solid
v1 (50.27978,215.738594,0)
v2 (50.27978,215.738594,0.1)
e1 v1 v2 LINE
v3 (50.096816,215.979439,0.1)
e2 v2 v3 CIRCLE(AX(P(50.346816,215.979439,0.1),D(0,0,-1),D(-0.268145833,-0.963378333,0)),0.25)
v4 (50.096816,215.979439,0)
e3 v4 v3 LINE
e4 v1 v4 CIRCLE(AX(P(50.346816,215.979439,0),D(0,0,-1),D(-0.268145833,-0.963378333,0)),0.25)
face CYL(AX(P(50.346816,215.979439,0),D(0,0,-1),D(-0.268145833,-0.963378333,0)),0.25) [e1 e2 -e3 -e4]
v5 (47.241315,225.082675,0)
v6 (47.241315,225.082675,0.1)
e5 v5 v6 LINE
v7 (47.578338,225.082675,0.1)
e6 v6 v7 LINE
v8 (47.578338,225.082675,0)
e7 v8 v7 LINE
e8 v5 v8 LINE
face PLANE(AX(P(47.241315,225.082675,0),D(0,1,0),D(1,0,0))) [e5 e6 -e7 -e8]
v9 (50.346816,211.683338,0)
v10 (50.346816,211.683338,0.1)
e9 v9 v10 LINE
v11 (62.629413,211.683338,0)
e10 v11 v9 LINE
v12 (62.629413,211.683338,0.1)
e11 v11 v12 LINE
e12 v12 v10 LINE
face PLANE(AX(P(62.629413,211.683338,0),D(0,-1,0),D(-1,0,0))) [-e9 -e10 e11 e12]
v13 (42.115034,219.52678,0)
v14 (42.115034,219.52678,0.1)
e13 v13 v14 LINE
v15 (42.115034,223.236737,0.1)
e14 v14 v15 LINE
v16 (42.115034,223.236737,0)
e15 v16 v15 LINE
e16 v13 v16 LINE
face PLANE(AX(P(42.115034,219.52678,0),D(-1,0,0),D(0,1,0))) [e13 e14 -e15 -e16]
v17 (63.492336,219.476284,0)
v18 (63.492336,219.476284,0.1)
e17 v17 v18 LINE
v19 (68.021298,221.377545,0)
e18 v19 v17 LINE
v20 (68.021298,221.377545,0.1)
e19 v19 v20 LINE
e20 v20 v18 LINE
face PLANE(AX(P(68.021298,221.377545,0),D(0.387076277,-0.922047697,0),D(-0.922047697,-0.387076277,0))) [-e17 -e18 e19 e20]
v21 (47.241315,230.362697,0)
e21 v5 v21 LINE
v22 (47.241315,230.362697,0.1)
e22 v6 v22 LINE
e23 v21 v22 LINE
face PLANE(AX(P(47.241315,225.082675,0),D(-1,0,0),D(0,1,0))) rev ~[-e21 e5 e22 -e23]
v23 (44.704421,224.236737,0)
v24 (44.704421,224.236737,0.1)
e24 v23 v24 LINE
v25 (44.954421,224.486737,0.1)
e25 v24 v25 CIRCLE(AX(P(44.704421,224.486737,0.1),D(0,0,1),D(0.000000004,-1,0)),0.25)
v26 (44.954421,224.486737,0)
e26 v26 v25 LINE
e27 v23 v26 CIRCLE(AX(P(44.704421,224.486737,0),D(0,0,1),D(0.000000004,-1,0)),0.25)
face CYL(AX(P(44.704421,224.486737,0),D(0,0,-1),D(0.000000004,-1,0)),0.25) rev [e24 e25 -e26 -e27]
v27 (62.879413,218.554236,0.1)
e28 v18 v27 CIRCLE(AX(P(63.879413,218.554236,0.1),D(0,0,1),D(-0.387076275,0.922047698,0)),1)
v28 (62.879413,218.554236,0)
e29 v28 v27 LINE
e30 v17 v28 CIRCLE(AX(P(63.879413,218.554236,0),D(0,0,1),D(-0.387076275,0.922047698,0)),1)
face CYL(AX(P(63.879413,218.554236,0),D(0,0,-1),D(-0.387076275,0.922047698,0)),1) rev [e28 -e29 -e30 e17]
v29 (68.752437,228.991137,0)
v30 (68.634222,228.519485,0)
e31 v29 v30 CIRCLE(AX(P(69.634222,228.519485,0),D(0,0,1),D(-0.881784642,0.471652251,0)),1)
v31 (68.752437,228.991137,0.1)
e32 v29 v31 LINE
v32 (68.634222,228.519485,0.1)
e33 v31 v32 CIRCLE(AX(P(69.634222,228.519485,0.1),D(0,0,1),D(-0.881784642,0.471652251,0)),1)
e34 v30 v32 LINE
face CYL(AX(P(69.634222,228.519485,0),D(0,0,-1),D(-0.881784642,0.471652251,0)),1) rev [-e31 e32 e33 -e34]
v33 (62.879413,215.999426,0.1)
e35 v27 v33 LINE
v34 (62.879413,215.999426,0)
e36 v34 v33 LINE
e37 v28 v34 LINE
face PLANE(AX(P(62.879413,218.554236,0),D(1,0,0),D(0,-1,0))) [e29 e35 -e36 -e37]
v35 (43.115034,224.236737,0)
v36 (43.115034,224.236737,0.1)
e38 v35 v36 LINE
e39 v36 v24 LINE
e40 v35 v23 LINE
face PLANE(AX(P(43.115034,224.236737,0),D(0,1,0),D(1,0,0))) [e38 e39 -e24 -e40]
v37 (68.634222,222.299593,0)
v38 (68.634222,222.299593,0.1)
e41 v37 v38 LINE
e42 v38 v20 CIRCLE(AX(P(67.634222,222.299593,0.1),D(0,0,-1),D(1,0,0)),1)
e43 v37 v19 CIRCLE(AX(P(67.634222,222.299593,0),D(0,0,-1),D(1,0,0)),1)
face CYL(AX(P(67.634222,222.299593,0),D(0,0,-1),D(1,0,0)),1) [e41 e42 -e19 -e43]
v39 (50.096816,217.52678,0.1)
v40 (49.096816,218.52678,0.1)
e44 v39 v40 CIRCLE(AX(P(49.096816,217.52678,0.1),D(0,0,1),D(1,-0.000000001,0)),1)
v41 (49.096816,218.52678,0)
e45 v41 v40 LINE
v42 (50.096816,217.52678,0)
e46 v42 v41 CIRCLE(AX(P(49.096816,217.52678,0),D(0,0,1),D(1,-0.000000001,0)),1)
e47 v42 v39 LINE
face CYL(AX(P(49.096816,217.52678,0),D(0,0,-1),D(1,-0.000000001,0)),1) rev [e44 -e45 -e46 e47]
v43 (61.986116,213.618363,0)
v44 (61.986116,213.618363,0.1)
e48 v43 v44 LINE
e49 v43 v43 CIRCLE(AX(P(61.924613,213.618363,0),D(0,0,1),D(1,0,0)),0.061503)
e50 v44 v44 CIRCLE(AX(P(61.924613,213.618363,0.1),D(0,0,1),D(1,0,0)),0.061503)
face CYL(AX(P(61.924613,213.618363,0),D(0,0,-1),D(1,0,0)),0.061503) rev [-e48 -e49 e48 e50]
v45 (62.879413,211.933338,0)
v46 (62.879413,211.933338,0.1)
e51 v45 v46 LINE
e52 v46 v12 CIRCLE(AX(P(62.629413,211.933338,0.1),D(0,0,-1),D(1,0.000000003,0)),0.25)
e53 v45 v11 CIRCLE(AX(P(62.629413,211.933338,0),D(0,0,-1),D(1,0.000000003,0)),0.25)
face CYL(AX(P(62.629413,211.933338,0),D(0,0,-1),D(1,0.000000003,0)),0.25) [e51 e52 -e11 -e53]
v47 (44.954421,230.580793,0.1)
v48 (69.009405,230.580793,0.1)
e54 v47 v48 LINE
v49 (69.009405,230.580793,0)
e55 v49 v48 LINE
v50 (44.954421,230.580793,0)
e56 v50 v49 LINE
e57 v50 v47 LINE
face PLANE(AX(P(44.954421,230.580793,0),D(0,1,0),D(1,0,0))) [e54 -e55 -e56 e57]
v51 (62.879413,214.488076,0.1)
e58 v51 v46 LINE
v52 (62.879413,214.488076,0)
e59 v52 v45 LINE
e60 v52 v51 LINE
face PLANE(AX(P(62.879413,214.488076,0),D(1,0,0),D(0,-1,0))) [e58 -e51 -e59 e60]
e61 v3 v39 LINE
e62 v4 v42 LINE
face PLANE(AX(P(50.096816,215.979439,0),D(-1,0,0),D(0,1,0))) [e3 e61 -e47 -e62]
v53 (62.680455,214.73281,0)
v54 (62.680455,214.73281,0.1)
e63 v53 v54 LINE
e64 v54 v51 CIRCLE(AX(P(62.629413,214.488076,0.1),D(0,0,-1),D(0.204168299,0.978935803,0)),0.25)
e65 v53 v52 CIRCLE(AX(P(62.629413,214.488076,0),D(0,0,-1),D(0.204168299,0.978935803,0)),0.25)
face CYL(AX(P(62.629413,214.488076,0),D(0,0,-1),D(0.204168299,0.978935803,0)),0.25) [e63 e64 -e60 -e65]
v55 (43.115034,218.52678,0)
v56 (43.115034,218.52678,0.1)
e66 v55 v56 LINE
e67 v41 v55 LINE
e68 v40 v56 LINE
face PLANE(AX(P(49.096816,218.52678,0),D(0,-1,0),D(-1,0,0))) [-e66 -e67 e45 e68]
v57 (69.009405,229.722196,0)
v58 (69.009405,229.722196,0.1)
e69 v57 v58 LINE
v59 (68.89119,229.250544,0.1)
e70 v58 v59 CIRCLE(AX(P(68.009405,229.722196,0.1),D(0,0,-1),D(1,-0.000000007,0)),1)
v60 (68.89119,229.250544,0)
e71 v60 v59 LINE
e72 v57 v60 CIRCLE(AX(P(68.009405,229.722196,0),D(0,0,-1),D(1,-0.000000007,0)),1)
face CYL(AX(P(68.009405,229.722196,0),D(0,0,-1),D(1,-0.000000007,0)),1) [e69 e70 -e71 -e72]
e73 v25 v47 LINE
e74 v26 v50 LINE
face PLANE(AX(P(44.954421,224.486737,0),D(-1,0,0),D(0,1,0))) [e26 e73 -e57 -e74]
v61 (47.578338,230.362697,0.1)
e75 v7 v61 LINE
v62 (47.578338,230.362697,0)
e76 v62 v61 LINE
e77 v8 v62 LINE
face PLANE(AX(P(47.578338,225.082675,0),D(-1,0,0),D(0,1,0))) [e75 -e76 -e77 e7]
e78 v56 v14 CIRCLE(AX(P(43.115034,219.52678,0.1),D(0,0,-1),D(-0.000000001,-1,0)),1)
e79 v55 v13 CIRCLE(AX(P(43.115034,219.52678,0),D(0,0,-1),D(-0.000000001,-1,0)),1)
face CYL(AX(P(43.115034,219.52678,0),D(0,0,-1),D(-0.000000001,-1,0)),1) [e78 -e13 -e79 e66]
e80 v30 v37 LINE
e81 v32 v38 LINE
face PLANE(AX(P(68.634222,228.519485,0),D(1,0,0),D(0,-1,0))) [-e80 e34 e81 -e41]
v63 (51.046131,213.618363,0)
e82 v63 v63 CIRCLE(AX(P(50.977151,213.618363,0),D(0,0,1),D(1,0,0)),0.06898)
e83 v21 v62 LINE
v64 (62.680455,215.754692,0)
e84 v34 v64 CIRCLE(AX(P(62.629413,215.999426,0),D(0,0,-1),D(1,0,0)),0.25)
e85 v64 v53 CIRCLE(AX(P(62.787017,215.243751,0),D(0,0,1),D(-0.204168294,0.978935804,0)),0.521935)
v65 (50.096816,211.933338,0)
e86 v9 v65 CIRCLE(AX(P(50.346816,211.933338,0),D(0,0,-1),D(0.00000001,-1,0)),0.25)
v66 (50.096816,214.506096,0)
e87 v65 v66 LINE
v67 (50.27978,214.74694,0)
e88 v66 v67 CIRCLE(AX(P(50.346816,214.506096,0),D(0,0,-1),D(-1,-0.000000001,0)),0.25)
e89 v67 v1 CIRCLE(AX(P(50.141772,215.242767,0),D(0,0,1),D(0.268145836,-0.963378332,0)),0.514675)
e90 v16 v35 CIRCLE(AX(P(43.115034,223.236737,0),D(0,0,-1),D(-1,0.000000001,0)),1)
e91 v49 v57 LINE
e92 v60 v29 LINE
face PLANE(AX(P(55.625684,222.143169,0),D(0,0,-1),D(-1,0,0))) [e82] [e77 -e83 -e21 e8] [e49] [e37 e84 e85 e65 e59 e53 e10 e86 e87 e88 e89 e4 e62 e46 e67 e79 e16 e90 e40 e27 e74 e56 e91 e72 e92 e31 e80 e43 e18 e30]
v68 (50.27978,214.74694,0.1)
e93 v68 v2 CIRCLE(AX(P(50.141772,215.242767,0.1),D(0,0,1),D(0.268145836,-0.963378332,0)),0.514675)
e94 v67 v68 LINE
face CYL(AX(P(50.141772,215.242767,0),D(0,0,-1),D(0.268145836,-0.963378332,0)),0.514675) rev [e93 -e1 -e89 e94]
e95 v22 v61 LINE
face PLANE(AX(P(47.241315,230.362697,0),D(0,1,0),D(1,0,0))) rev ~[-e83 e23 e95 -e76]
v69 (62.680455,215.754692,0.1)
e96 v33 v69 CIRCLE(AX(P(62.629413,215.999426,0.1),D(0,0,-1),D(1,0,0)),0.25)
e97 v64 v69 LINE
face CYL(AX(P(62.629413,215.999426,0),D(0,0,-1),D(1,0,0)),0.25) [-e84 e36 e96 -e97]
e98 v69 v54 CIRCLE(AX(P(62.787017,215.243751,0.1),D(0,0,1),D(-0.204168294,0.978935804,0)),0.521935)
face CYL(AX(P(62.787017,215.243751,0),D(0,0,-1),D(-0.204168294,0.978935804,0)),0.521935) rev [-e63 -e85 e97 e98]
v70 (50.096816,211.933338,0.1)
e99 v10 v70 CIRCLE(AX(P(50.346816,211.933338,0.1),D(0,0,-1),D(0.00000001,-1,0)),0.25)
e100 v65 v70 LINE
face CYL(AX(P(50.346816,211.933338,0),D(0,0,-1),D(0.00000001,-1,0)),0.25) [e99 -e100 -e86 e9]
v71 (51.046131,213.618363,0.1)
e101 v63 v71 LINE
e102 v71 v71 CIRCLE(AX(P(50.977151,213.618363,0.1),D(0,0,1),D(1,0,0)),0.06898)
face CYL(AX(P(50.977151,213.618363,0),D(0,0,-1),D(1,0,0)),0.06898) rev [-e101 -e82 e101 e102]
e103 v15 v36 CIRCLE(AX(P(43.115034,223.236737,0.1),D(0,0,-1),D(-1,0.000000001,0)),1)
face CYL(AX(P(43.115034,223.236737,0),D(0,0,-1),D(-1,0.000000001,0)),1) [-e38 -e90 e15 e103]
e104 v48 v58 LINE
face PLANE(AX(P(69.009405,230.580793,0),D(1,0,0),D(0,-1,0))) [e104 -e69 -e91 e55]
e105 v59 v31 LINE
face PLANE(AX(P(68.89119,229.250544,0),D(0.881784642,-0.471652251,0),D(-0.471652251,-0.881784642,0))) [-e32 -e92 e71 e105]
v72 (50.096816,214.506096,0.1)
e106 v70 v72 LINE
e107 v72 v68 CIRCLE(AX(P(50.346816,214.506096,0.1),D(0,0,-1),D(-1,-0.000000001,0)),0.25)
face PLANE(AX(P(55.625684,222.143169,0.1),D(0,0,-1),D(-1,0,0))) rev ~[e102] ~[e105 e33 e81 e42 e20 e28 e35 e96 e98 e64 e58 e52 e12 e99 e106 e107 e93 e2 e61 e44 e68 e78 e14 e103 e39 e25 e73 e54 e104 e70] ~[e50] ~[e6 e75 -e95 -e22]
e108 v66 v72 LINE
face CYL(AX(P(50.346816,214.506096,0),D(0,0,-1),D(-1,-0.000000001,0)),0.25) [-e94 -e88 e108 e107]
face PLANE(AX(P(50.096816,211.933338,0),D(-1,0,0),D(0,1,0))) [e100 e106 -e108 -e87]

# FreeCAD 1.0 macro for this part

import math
import FreeCAD as App
import Part
import Sketcher

V = App.Vector
Q = App.Units.Quantity

doc = App.newDocument("Part")
body = doc.addObject("PartDesign::Body", "Body")

# Sketch on XY plane
sketch1 = body.newObject("Sketcher::SketchObject", "Sketch")
sketch1.AttachmentSupport = (doc.getObject("XY_Plane"), [""])
sketch1.MapMode = "FlatFace"
sketch1.addGeometry([
    Part.LineSegment(V(69.01, 229.72, 0), V(69.01, 230.58, 0)),  # 0
    Part.LineSegment(V(69.01, 230.58, 0), V(44.95, 230.58, 0)),  # 1
    Part.LineSegment(V(44.95, 230.58, 0), V(44.95, 224.49, 0)),  # 2
    Part.ArcOfCircle(Part.Circle(V(44.7, 224.49, 0), V(0, 0, 1), 0.25), math.radians(-90), math.radians(0)),  # 3
    Part.LineSegment(V(44.7, 224.24, 0), V(43.12, 224.24, 0)),  # 4
    Part.ArcOfCircle(Part.Circle(V(43.12, 223.24, 0), V(0, 0, 1), 1), math.radians(90), math.radians(180)),  # 5
    Part.LineSegment(V(42.12, 223.24, 0), V(42.12, 219.53, 0)),  # 6
    Part.ArcOfCircle(Part.Circle(V(43.12, 219.53, 0), V(0, 0, 1), 1), math.radians(-180), math.radians(-90)),  # 7
    Part.LineSegment(V(43.12, 218.53, 0), V(49.1, 218.53, 0)),  # 8
    Part.ArcOfCircle(Part.Circle(V(49.1, 217.53, 0), V(0, 0, 1), 1), math.radians(0), math.radians(90)),  # 9
    Part.LineSegment(V(50.1, 217.53, 0), V(50.1, 215.98, 0)),  # 10
    Part.ArcOfCircle(Part.Circle(V(50.35, 215.98, 0), V(0, 0, 1), 0.25), math.radians(180), math.radians(254)),  # 11
    Part.ArcOfCircle(Part.Circle(V(50.14, 215.24, 0), V(0, 0, 1), 0.51), math.radians(-74), math.radians(74)),  # 12
    Part.ArcOfCircle(Part.Circle(V(50.35, 214.51, 0), V(0, 0, 1), 0.25), math.radians(106), math.radians(180)),  # 13
    Part.LineSegment(V(50.1, 214.51, 0), V(50.1, 211.93, 0)),  # 14
    Part.ArcOfCircle(Part.Circle(V(50.35, 211.93, 0), V(0, 0, 1), 0.25), math.radians(180), math.radians(270)),  # 15
    Part.LineSegment(V(50.35, 211.68, 0), V(62.63, 211.68, 0)),  # 16
    Part.ArcOfCircle(Part.Circle(V(62.63, 211.93, 0), V(0, 0, 1), 0.25), math.radians(-90), math.radians(0)),  # 17
    Part.LineSegment(V(62.88, 211.93, 0), V(62.88, 214.49, 0)),  # 18
    Part.ArcOfCircle(Part.Circle(V(62.63, 214.49, 0), V(0, 0, 1), 0.25), math.radians(0), math.radians(78)),  # 19
    Part.ArcOfCircle(Part.Circle(V(62.79, 215.24, 0), V(0, 0, 1), 0.52), math.radians(102), math.radians(258)),  # 20
    Part.ArcOfCircle(Part.Circle(V(62.63, 216, 0), V(0, 0, 1), 0.25), math.radians(-78), math.radians(0)),  # 21
    Part.LineSegment(V(62.88, 216, 0), V(62.88, 218.55, 0)),  # 22
    Part.ArcOfCircle(Part.Circle(V(63.88, 218.55, 0), V(0, 0, 1), 1), math.radians(113), math.radians(180)),  # 23
    Part.LineSegment(V(63.49, 219.48, 0), V(68.02, 221.38, 0)),  # 24
    Part.ArcOfCircle(Part.Circle(V(67.63, 222.3, 0), V(0, 0, 1), 1), math.radians(-67), math.radians(0)),  # 25
    Part.LineSegment(V(68.63, 222.3, 0), V(68.63, 228.52, 0)),  # 26
    Part.ArcOfCircle(Part.Circle(V(69.63, 228.52, 0), V(0, 0, 1), 1), math.radians(152), math.radians(180)),  # 27
    Part.LineSegment(V(68.75, 228.99, 0), V(68.89, 229.25, 0)),  # 28
    Part.ArcOfCircle(Part.Circle(V(68.01, 229.72, 0), V(0, 0, 1), 1), math.radians(-28), math.radians(0)),  # 29
    Part.Circle(V(61.92, 213.62, 0), V(0, 0, 1), 0.06),  # 30
    Part.Circle(V(50.98, 213.62, 0), V(0, 0, 1), 0.07),  # 31
    Part.LineSegment(V(47.24, 225.08, 0), V(47.24, 230.36, 0)),  # 32
    Part.LineSegment(V(47.24, 230.36, 0), V(47.58, 230.36, 0)),  # 33
    Part.LineSegment(V(47.58, 230.36, 0), V(47.58, 225.08, 0)),  # 34
    Part.LineSegment(V(47.58, 225.08, 0), V(47.24, 225.08, 0)),  # 35
], False)
sketch1.addConstraint([
    Sketcher.Constraint("Coincident", 0, 2, 1, 1),
    Sketcher.Constraint("Coincident", 1, 2, 2, 1),
    Sketcher.Constraint("Tangent", 2, 2, 3, 2),
    Sketcher.Constraint("Tangent", 3, 1, 4, 1),
    Sketcher.Constraint("Tangent", 4, 2, 5, 1),
    Sketcher.Constraint("Tangent", 5, 2, 6, 1),
    Sketcher.Constraint("Tangent", 6, 2, 7, 1),
    Sketcher.Constraint("Tangent", 7, 2, 8, 1),
    Sketcher.Constraint("Tangent", 8, 2, 9, 2),
    Sketcher.Constraint("Tangent", 9, 1, 10, 1),
    Sketcher.Constraint("Tangent", 10, 2, 11, 1),
    Sketcher.Constraint("Tangent", 11, 2, 12, 2),
    Sketcher.Constraint("Tangent", 12, 1, 13, 1),
    Sketcher.Constraint("Tangent", 13, 2, 14, 1),
    Sketcher.Constraint("Tangent", 14, 2, 15, 1),
    Sketcher.Constraint("Tangent", 15, 2, 16, 1),
    Sketcher.Constraint("Tangent", 16, 2, 17, 1),
    Sketcher.Constraint("Tangent", 17, 2, 18, 1),
    Sketcher.Constraint("Tangent", 18, 2, 19, 1),
    Sketcher.Constraint("Tangent", 19, 2, 20, 2),
    Sketcher.Constraint("Tangent", 20, 1, 21, 1),
    Sketcher.Constraint("Tangent", 21, 2, 22, 1),
    Sketcher.Constraint("Tangent", 22, 2, 23, 2),
    Sketcher.Constraint("Tangent", 23, 1, 24, 1),
    Sketcher.Constraint("Tangent", 24, 2, 25, 1),
    Sketcher.Constraint("Tangent", 25, 2, 26, 1),
    Sketcher.Constraint("Tangent", 26, 2, 27, 2),
    Sketcher.Constraint("Tangent", 27, 1, 28, 1),
    Sketcher.Constraint("Tangent", 28, 2, 29, 1),
    Sketcher.Constraint("Tangent", 29, 2, 0, 1),
    Sketcher.Constraint("Coincident", 32, 2, 33, 1),
    Sketcher.Constraint("Coincident", 33, 2, 34, 1),
    Sketcher.Constraint("Coincident", 34, 2, 35, 1),
    Sketcher.Constraint("Coincident", 35, 2, 32, 1),
    Sketcher.Constraint("Vertical", 0),
    Sketcher.Constraint("Horizontal", 1),
    Sketcher.Constraint("Vertical", 2),
    Sketcher.Constraint("Horizontal", 4),
    Sketcher.Constraint("Vertical", 6),
    Sketcher.Constraint("Horizontal", 8),
    Sketcher.Constraint("Vertical", 10),
    Sketcher.Constraint("Vertical", 14),
    Sketcher.Constraint("Horizontal", 16),
    Sketcher.Constraint("Vertical", 18),
    Sketcher.Constraint("Vertical", 22),
    Sketcher.Constraint("Vertical", 26),
    Sketcher.Constraint("Vertical", 32),
    Sketcher.Constraint("Horizontal", 33),
    Sketcher.Constraint("Vertical", 34),
    Sketcher.Constraint("Horizontal", 35),
    Sketcher.Constraint("Equal", 5, 7),
    Sketcher.Constraint("Equal", 7, 9),
    Sketcher.Constraint("Equal", 3, 11),
    Sketcher.Constraint("Equal", 11, 13),
    Sketcher.Constraint("Equal", 13, 15),
    Sketcher.Constraint("Equal", 15, 17),
    Sketcher.Constraint("Equal", 17, 19),
    Sketcher.Constraint("Equal", 19, 21),
    Sketcher.Constraint("Equal", 9, 23),
    Sketcher.Constraint("Equal", 23, 25),
    Sketcher.Constraint("Equal", 25, 27),
    Sketcher.Constraint("Equal", 27, 29),
    Sketcher.Constraint("Horizontal", 30, 3, 31, 3),
    Sketcher.Constraint("Vertical", 11, 3, 13, 3),
    Sketcher.Constraint("Vertical", 19, 3, 21, 3),
    Sketcher.Constraint("Radius", 5, Q("1 mm")),
    Sketcher.Constraint("Radius", 3, Q("0.25 mm")),
    Sketcher.Constraint("Diameter", 31, Q("0.137961 mm")),
    Sketcher.Constraint("Diameter", 30, Q("0.123006 mm")),
    Sketcher.Constraint("Radius", 12, Q("0.514675 mm")),
    Sketcher.Constraint("Radius", 20, Q("0.521935 mm")),
    Sketcher.Constraint("DistanceY", 10, 2, 10, 1, Q("1.547342 mm")),
    Sketcher.Constraint("DistanceY", 18, 1, 18, 2, Q("2.554738 mm")),
    Sketcher.Constraint("DistanceY", 22, 1, 22, 2, Q("2.554811 mm")),
    Sketcher.Constraint("DistanceY", 26, 1, 26, 2, Q("6.219892 mm")),
    Sketcher.Constraint("DistanceX", -1, 1, 24, 2, Q("68.021298 mm")),
    Sketcher.Constraint("DistanceY", 15, 3, 11, 3, Q("4.046101 mm")),
    Sketcher.Constraint("DistanceX", 11, 3, 20, 3, Q("12.440201 mm")),
    Sketcher.Constraint("DistanceY", 17, 3, 23, 3, Q("6.620898 mm")),
    Sketcher.Constraint("DistanceX", 30, 3, 19, 3, Q("0.704799 mm")),
    Sketcher.Constraint("DistanceY", 25, 3, 0, 2, Q("8.2812 mm")),
    Sketcher.Constraint("DistanceY", 13, 3, 11, 2, Q("1.232499 mm")),
    Sketcher.Constraint("DistanceX", 1, 2, 1, 1, Q("24.054985 mm")),
    Sketcher.Constraint("DistanceX", 4, 2, 4, 1, Q("1.589386 mm")),
    Sketcher.Constraint("DistanceX", 8, 1, 8, 2, Q("5.981782 mm")),
    Sketcher.Constraint("DistanceX", 33, 1, 33, 2, Q("0.337023 mm")),
    Sketcher.Constraint("DistanceY", 0, 1, 0, 2, Q("0.858597 mm")),
    Sketcher.Constraint("DistanceY", 2, 2, 2, 1, Q("6.094056 mm")),
    Sketcher.Constraint("DistanceY", 6, 2, 6, 1, Q("3.709956 mm")),
    Sketcher.Constraint("DistanceY", 32, 1, 32, 2, Q("5.280022 mm")),
    Sketcher.Constraint("DistanceX", -1, 1, 3, 3, Q("44.704421 mm")),
    Sketcher.Constraint("DistanceY", -1, 1, 7, 3, Q("219.52678 mm")),
    Sketcher.Constraint("DistanceX", -1, 1, 31, 3, Q("50.977151 mm")),
    Sketcher.Constraint("DistanceY", 2, 2, 32, 2, Q("5.87596 mm")),
    Sketcher.Constraint("DistanceX", 4, 2, 32, 2, Q("4.126281 mm")),
    Sketcher.Constraint("DistanceY", -1, 1, 30, 3, Q("213.618363 mm")),
])
pad1 = body.newObject("PartDesign::Pad", "Pad")
pad1.Profile = sketch1
pad1.Length = 0.1

doc.recompute()
